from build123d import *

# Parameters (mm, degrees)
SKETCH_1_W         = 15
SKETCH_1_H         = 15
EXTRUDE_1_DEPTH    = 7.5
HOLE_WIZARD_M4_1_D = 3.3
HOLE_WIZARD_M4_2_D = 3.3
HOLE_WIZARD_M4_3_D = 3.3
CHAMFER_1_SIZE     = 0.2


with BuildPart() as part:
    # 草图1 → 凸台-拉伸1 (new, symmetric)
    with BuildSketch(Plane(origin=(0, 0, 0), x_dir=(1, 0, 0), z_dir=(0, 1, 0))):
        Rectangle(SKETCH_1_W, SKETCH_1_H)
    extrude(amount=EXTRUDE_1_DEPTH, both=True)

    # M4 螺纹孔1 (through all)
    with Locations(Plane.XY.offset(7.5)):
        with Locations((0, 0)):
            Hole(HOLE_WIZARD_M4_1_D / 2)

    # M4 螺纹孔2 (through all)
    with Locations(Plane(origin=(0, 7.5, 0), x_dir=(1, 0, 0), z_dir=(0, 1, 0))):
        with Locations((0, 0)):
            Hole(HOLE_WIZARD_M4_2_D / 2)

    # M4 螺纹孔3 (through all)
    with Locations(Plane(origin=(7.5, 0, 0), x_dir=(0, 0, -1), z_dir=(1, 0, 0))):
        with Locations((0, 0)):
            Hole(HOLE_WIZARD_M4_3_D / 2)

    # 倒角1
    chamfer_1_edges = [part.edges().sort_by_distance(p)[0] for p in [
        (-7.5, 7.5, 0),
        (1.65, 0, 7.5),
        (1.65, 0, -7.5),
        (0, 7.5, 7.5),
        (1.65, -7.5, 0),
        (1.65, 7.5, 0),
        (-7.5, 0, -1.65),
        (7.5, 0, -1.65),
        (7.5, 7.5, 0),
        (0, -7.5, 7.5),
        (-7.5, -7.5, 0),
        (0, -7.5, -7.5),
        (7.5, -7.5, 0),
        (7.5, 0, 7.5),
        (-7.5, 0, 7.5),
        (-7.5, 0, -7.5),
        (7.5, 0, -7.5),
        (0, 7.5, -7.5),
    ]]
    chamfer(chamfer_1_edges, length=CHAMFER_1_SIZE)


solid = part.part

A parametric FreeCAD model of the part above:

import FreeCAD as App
import Part
import Sketcher
Q = App.Units.Quantity


def edges_at(feature, points):
    """Names of the edges that pass closest to the given points."""
    edges = feature.Shape.Edges
    near = lambda p: min(range(len(edges)), key=lambda i: edges[i].distToShape(Part.Vertex(*p))[0])
    return sorted({f"Edge{near(p) + 1}" for p in points})

doc = App.newDocument("Part")
body = doc.addObject("PartDesign::Body", "Body")

# Sketch on XZ plane
sketch1 = doc.addObject("Sketcher::SketchObject", "Sketch")
body.addObject(sketch1)
sketch1.AttachmentSupport = (doc.XZ_Plane, [""])
sketch1.MapMode = "FlatFace"
sketch1.addGeometry([
    Part.LineSegment(App.Vector(-7.5, -7.5, 0), App.Vector(-7.5, 7.5, 0)),
    Part.LineSegment(App.Vector(-7.5, 7.5, 0), App.Vector(7.5, 7.5, 0)),
    Part.LineSegment(App.Vector(7.5, 7.5, 0), App.Vector(7.5, -7.5, 0)),
    Part.LineSegment(App.Vector(7.5, -7.5, 0), App.Vector(-7.5, -7.5, 0)),
], False)
sketch1.addConstraint([
    Sketcher.Constraint("Coincident", 0, 2, 1, 1),
    Sketcher.Constraint("Coincident", 1, 2, 2, 1),
    Sketcher.Constraint("Coincident", 2, 2, 3, 1),
    Sketcher.Constraint("Coincident", 3, 2, 0, 1),
    Sketcher.Constraint("Vertical", 0),
    Sketcher.Constraint("Horizontal", 1),
    Sketcher.Constraint("Vertical", 2),
    Sketcher.Constraint("Horizontal", 3),
    Sketcher.Constraint("Symmetric", 0, 2, 2, 2, -1, 1),
    Sketcher.Constraint("Equal", 3, 0),
    Sketcher.Constraint("DistanceX", 1, 1, 1, 2, Q("15 mm")),
])
pad1 = doc.addObject("PartDesign::Pad", "Pad")
body.addObject(pad1)
pad1.Profile = sketch1
pad1.Length = 15
pad1.Midplane = True

# Sketch on XY plane
sketch2 = doc.addObject("Sketcher::SketchObject", "Sketch001")
body.addObject(sketch2)
sketch2.AttachmentSupport = (doc.XY_Plane, [""])
sketch2.MapMode = "FlatFace"
sketch2.AttachmentOffset = App.Placement(App.Vector(0, 0, 7.5), App.Rotation())
sketch2.addGeometry(Part.Circle(App.Vector(0, 0, 0), App.Vector(0, 0, 1), 1.65), False)
sketch2.addConstraint([
    Sketcher.Constraint("Coincident", 0, 3, -1, 1),
    Sketcher.Constraint("Diameter", 0, Q("3.3 mm")),
])
doc.recompute()
hole = doc.addObject("PartDesign::Hole", "Hole")
body.addObject(hole)
hole.Profile = sketch2
hole.ThreadType = "None"
hole.Diameter = 3.3
hole.DepthType = "ThroughAll"

# Sketch on XZ plane
sketch3 = doc.addObject("Sketcher::SketchObject", "Sketch002")
body.addObject(sketch3)
sketch3.AttachmentSupport = (doc.XZ_Plane, [""])
sketch3.MapMode = "FlatFace"
sketch3.AttachmentOffset = App.Placement(App.Vector(0, 0, -7.5), App.Rotation())
sketch3.addGeometry(Part.Circle(App.Vector(0, 0, 0), App.Vector(0, 0, 1), 1.65), False)
sketch3.addConstraint([
    Sketcher.Constraint("Coincident", 0, 3, -1, 1),
    Sketcher.Constraint("Diameter", 0, Q("3.3 mm")),
])
doc.recompute()
hole2 = doc.addObject("PartDesign::Hole", "Hole001")
body.addObject(hole2)
hole2.Profile = sketch3
hole2.ThreadType = "None"
hole2.Diameter = 3.3
hole2.DepthType = "ThroughAll"
hole2.Reversed = True

# Sketch on YZ plane
sketch4 = doc.addObject("Sketcher::SketchObject", "Sketch003")
body.addObject(sketch4)
sketch4.AttachmentSupport = (doc.YZ_Plane, [""])
sketch4.MapMode = "FlatFace"
sketch4.AttachmentOffset = App.Placement(App.Vector(0, 0, 7.5), App.Rotation())
sketch4.addGeometry(Part.Circle(App.Vector(0, 0, 0), App.Vector(0, 0, 1), 1.65), False)
sketch4.addConstraint([
    Sketcher.Constraint("Coincident", 0, 3, -1, 1),
    Sketcher.Constraint("Diameter", 0, Q("3.3 mm")),
])
doc.recompute()
hole3 = doc.addObject("PartDesign::Hole", "Hole002")
body.addObject(hole3)
hole3.Profile = sketch4
hole3.ThreadType = "None"
hole3.Diameter = 3.3
hole3.DepthType = "ThroughAll"
doc.recompute()

chamfer = doc.addObject("PartDesign::Chamfer", "Chamfer")
body.addObject(chamfer)
chamfer.Base = (hole3, edges_at(hole3, [
    (-7.5, 7.5, 0),
    (1.65, 0, 7.5),
    (1.65, 0, -7.5),
    (0, 7.5, 7.5),
    (1.65, -7.5, 0),
    (1.65, 7.5, 0),
    (-7.5, 0, -1.65),
    (7.5, 0, -1.65),
    (7.5, 7.5, 0),
    (0, -7.5, 7.5),
    (-7.5, -7.5, 0),
    (0, -7.5, -7.5),
    (7.5, -7.5, 0),
    (7.5, 0, 7.5),
    (-7.5, 0, 7.5),
    (-7.5, 0, -7.5),
    (7.5, 0, -7.5),
    (0, 7.5, -7.5),
]))
chamfer.Size = 0.2

doc.recompute()
